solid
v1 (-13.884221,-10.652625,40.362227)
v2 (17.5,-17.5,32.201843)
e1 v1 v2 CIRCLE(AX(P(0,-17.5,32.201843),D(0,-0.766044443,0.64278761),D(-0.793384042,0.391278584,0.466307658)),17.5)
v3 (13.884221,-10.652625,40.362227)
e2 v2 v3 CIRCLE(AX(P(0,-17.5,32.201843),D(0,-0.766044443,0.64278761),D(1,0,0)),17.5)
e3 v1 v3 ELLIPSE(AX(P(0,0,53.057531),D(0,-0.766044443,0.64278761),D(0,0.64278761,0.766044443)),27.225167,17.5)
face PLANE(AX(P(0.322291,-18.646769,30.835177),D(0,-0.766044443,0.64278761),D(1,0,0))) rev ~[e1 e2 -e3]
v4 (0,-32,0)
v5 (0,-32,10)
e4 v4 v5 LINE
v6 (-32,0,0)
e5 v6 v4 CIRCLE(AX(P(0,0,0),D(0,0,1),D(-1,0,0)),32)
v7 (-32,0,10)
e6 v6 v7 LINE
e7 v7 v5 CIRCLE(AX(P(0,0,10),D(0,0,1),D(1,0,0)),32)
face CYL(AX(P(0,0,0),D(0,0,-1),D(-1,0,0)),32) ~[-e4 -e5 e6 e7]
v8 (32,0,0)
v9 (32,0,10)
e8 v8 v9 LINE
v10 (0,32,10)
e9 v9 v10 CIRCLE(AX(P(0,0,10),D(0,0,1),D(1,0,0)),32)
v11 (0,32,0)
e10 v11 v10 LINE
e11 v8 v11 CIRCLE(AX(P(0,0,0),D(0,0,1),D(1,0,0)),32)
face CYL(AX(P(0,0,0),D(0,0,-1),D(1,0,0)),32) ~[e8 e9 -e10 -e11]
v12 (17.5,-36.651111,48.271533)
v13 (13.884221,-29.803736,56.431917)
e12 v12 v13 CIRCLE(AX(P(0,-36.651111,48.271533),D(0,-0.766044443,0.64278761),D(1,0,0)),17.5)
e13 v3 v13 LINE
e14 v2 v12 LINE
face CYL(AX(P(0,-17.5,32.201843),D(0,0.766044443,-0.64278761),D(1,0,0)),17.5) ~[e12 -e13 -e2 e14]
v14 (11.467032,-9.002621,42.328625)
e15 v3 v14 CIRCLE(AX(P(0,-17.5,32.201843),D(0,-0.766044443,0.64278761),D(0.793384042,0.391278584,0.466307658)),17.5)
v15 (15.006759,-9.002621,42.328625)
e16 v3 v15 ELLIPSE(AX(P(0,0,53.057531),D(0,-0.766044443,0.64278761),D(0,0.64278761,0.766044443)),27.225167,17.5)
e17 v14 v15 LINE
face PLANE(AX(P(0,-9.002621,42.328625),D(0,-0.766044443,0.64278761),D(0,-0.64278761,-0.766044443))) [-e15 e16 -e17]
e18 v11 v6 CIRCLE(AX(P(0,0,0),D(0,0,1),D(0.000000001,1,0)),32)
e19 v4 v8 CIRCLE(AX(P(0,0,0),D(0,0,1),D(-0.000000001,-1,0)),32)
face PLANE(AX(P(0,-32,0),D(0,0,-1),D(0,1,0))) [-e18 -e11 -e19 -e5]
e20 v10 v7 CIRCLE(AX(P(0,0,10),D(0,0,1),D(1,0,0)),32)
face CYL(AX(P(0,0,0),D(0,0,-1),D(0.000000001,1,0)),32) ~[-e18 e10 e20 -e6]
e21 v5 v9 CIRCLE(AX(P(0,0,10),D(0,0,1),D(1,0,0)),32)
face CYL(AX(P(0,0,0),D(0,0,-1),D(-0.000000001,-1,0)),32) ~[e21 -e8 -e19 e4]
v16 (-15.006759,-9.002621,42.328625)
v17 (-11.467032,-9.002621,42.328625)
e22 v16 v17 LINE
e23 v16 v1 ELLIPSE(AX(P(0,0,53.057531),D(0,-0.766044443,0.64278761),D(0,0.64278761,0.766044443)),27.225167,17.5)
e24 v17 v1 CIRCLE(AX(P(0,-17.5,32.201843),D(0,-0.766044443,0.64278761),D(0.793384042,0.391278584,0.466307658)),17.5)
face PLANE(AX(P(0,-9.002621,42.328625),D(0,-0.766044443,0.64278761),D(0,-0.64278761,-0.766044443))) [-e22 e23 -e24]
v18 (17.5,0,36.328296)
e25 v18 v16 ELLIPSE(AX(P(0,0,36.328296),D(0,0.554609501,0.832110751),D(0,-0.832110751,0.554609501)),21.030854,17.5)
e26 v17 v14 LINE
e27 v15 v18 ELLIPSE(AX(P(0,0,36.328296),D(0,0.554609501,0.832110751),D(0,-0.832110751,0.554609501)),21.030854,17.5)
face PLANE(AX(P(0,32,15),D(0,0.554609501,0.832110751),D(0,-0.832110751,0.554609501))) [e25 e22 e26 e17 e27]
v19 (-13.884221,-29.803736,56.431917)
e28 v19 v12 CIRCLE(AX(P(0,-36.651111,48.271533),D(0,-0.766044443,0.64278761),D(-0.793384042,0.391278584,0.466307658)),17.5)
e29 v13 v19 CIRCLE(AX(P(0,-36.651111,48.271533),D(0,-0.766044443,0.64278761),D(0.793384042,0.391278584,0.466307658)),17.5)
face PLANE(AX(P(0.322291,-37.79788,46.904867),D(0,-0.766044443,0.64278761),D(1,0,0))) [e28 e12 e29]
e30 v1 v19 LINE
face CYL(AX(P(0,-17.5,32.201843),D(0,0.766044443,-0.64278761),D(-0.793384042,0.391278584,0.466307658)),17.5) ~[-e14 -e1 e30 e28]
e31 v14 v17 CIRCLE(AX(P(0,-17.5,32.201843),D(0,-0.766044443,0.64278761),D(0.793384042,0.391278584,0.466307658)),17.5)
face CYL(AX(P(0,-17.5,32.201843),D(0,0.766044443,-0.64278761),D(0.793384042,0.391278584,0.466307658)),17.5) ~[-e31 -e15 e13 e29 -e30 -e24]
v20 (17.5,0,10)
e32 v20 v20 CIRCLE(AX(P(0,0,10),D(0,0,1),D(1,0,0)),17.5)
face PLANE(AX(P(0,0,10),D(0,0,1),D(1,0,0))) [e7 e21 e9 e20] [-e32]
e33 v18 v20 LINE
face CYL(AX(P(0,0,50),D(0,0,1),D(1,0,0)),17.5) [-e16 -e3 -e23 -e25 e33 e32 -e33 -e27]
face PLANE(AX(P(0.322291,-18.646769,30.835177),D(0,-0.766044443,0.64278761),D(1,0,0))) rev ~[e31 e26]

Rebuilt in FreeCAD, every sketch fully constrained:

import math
import FreeCAD as App
import Part
import Sketcher
from FreeCAD import Vector
Q = App.Units.Quantity

doc = App.newDocument("Part")
body = doc.addObject("PartDesign::Body", "Body")

sketch1 = body.newObject("Sketcher::SketchObject", "Sketch")
sketch1.AttachmentSupport = (doc.getObject("YZ_Plane"), [""])
sketch1.MapMode = "FlatFace"
sketch1.addGeometry([
    Part.LineSegment(Vector(32, 15, 0), Vector(-9, 42.33, 0)),
    Part.LineSegment(Vector(-9, 42.33, 0), Vector(-31.93, 15, 0)),
    Part.LineSegment(Vector(-31.93, 15, 0), Vector(-32, 15, 0)),
    Part.LineSegment(Vector(-32, 15, 0), Vector(-32, 0, 0)),
    Part.LineSegment(Vector(-32, 0, 0), Vector(32, 0, 0)),
    Part.LineSegment(Vector(32, 0, 0), Vector(32, 15, 0)),
], False)
sketch1.addConstraint([
    Sketcher.Constraint("Coincident", 0, 2, 1, 1),
    Sketcher.Constraint("Coincident", 1, 2, 2, 1),
    Sketcher.Constraint("Coincident", 2, 2, 3, 1),
    Sketcher.Constraint("Coincident", 3, 2, 4, 1),
    Sketcher.Constraint("Coincident", 4, 2, 5, 1),
    Sketcher.Constraint("Coincident", 5, 2, 0, 1),
    Sketcher.Constraint("Horizontal", 2),
    Sketcher.Constraint("Vertical", 3),
    Sketcher.Constraint("Horizontal", 4),
    Sketcher.Constraint("Vertical", 5),
    Sketcher.Constraint("Symmetric", 3, 2, 4, 2, -1, 1),
    Sketcher.Constraint("Horizontal", 2, 2, 5, 2),
    Sketcher.Constraint("DistanceX", 4, 1, 4, 2, 64.0),
    Sketcher.Constraint("DistanceY", 3, 2, 3, 1, 15.0),
    Sketcher.Constraint("Angle", 1, Q("-130 deg")),
    Sketcher.Constraint("DistanceX", 2, 2, 2, 1, 0.06594),
    Sketcher.Constraint("DistanceX", 0, 2, -1, 1, 9.002621),
])
pad1 = body.newObject("PartDesign::Pad", "Pad")
pad1.Profile = sketch1
pad1.Length = 64
pad1.Midplane = True

sketch2 = body.newObject("Sketcher::SketchObject", "Sketch001")
sketch2.AttachmentSupport = (doc.getObject("XY_Plane"), [""])
sketch2.MapMode = "FlatFace"
sketch2.addGeometry([
    Part.ArcOfCircle(Part.Circle(Vector(0, 0, 0), Vector(0, 0, 1), 32), math.radians(180), math.radians(270)),
    Part.LineSegment(Vector(0, -32, 0), Vector(-32, -32, 0)),
    Part.LineSegment(Vector(-32, -32, 0), Vector(-32, 0, 0)),
    Part.ArcOfCircle(Part.Circle(Vector(0, 0, 0), Vector(0, 0, 1), 32), math.radians(-90), math.radians(0)),
    Part.LineSegment(Vector(32, 0, 0), Vector(32, -32, 0)),
    Part.LineSegment(Vector(32, -32, 0), Vector(0, -32, 0)),
    Part.LineSegment(Vector(32, 32, 0), Vector(32, 0, 0)),
    Part.ArcOfCircle(Part.Circle(Vector(0, 0, 0), Vector(0, 0, 1), 32), math.radians(0), math.radians(90)),
    Part.LineSegment(Vector(0, 32, 0), Vector(32, 32, 0)),
    Part.LineSegment(Vector(-32, 32, 0), Vector(0, 32, 0)),
    Part.ArcOfCircle(Part.Circle(Vector(0, 0, 0), Vector(0, 0, 1), 32), math.radians(90), math.radians(180)),
    Part.LineSegment(Vector(-32, 0, 0), Vector(-32, 32, 0)),
], False)
sketch2.addConstraint([
    Sketcher.Constraint("Tangent", 0, 2, 1, 1),
    Sketcher.Constraint("Coincident", 1, 2, 2, 1),
    Sketcher.Constraint("Tangent", 2, 2, 0, 1),
    Sketcher.Constraint("Tangent", 3, 2, 4, 1),
    Sketcher.Constraint("Coincident", 4, 2, 5, 1),
    Sketcher.Constraint("Tangent", 5, 2, 3, 1),
    Sketcher.Constraint("Tangent", 6, 2, 7, 1),
    Sketcher.Constraint("Tangent", 7, 2, 8, 1),
    Sketcher.Constraint("Coincident", 8, 2, 6, 1),
    Sketcher.Constraint("Tangent", 9, 2, 10, 1),
    Sketcher.Constraint("Tangent", 10, 2, 11, 1),
    Sketcher.Constraint("Coincident", 11, 2, 9, 1),
    Sketcher.Constraint("Horizontal", 1),
    Sketcher.Constraint("Vertical", 2),
    Sketcher.Constraint("Vertical", 4),
    Sketcher.Constraint("Horizontal", 5),
    Sketcher.Constraint("Vertical", 6),
    Sketcher.Constraint("Horizontal", 8),
    Sketcher.Constraint("Horizontal", 9),
    Sketcher.Constraint("Vertical", 11),
    Sketcher.Constraint("Coincident", 0, 3, -1, 1),
    Sketcher.Constraint("Coincident", 3, 3, -1, 1),
    Sketcher.Constraint("Coincident", 7, 3, -1, 1),
    Sketcher.Constraint("Coincident", 10, 3, -1, 1),
    Sketcher.Constraint("Equal", 0, 3),
    Sketcher.Constraint("Equal", 3, 7),
    Sketcher.Constraint("Equal", 7, 10),
    Sketcher.Constraint("Radius", 0, 32.0),
])
pocket1 = body.newObject("PartDesign::Pocket", "Pocket")
pocket1.Profile = sketch2
pocket1.Length = 50
pocket1.Reversed = True

sketch3 = body.newObject("Sketcher::SketchObject", "Sketch002")
sketch3.AttachmentSupport = (doc.getObject("XY_Plane"), [""])
sketch3.MapMode = "FlatFace"
sketch3.AttachmentOffset = App.Placement(Vector(0, 0, 50), App.Rotation())
sketch3.addGeometry([
    Part.Circle(Vector(0, 0, 0), Vector(0, 0, 1), 32),
    Part.Circle(Vector(0, 0, 0), Vector(0, 0, 1), 18),
], False)
sketch3.addConstraint([
    Sketcher.Constraint("Coincident", 0, 3, -1, 1),
    Sketcher.Constraint("Coincident", 1, 3, -1, 1),
    Sketcher.Constraint("Diameter", 0, 64.0),
    Sketcher.Constraint("Diameter", 1, 35.0),
])
pocket2 = body.newObject("PartDesign::Pocket", "Pocket001")
pocket2.Profile = sketch3
pocket2.Length = 40

sketch4 = body.newObject("Sketcher::SketchObject", "Sketch003")
sketch4.Placement = App.Placement(Vector(0, -26.125734, 21.922094), App.Rotation(Vector(1, 0, 0), Vector(0, 0.64278761, 0.766044443), Vector(0, -0.766044443, 0.64278761), "ZXY"))
sketch4.addGeometry([
    Part.ArcOfCircle(Part.Circle(Vector(0, 13, 0), Vector(0, 0, 1), 18), math.radians(143), math.radians(360)),
    Part.ArcOfCircle(Part.Circle(Vector(0, 13, 0), Vector(0, 0, 1), 18), math.radians(0), math.radians(37)),
    Part.ArcOfCircle(Part.Circle(Vector(0, 13, 0), Vector(0, 0, 1), 18), math.radians(37), math.radians(143)),
], False)
sketch4.addConstraint([
    Sketcher.Constraint("Tangent", 0, 2, 1, 1),
    Sketcher.Constraint("Tangent", 1, 2, 2, 1),
    Sketcher.Constraint("Tangent", 2, 2, 0, 1),
    Sketcher.Constraint("Symmetric", 1, 2, 2, 2, -2),
    Sketcher.Constraint("Horizontal", 2, 3, 0, 2),
    Sketcher.Constraint("Radius", 0, 17.5),
    Sketcher.Constraint("DistanceY", -1, 1, 0, 3, 13.41926),
    Sketcher.Constraint("DistanceX", -1, 1, 1, 2, 13.884221),
])
pad2 = body.newObject("PartDesign::Pad", "Pad001")
pad2.Profile = sketch4
pad2.Length = 25

doc.recompute()
